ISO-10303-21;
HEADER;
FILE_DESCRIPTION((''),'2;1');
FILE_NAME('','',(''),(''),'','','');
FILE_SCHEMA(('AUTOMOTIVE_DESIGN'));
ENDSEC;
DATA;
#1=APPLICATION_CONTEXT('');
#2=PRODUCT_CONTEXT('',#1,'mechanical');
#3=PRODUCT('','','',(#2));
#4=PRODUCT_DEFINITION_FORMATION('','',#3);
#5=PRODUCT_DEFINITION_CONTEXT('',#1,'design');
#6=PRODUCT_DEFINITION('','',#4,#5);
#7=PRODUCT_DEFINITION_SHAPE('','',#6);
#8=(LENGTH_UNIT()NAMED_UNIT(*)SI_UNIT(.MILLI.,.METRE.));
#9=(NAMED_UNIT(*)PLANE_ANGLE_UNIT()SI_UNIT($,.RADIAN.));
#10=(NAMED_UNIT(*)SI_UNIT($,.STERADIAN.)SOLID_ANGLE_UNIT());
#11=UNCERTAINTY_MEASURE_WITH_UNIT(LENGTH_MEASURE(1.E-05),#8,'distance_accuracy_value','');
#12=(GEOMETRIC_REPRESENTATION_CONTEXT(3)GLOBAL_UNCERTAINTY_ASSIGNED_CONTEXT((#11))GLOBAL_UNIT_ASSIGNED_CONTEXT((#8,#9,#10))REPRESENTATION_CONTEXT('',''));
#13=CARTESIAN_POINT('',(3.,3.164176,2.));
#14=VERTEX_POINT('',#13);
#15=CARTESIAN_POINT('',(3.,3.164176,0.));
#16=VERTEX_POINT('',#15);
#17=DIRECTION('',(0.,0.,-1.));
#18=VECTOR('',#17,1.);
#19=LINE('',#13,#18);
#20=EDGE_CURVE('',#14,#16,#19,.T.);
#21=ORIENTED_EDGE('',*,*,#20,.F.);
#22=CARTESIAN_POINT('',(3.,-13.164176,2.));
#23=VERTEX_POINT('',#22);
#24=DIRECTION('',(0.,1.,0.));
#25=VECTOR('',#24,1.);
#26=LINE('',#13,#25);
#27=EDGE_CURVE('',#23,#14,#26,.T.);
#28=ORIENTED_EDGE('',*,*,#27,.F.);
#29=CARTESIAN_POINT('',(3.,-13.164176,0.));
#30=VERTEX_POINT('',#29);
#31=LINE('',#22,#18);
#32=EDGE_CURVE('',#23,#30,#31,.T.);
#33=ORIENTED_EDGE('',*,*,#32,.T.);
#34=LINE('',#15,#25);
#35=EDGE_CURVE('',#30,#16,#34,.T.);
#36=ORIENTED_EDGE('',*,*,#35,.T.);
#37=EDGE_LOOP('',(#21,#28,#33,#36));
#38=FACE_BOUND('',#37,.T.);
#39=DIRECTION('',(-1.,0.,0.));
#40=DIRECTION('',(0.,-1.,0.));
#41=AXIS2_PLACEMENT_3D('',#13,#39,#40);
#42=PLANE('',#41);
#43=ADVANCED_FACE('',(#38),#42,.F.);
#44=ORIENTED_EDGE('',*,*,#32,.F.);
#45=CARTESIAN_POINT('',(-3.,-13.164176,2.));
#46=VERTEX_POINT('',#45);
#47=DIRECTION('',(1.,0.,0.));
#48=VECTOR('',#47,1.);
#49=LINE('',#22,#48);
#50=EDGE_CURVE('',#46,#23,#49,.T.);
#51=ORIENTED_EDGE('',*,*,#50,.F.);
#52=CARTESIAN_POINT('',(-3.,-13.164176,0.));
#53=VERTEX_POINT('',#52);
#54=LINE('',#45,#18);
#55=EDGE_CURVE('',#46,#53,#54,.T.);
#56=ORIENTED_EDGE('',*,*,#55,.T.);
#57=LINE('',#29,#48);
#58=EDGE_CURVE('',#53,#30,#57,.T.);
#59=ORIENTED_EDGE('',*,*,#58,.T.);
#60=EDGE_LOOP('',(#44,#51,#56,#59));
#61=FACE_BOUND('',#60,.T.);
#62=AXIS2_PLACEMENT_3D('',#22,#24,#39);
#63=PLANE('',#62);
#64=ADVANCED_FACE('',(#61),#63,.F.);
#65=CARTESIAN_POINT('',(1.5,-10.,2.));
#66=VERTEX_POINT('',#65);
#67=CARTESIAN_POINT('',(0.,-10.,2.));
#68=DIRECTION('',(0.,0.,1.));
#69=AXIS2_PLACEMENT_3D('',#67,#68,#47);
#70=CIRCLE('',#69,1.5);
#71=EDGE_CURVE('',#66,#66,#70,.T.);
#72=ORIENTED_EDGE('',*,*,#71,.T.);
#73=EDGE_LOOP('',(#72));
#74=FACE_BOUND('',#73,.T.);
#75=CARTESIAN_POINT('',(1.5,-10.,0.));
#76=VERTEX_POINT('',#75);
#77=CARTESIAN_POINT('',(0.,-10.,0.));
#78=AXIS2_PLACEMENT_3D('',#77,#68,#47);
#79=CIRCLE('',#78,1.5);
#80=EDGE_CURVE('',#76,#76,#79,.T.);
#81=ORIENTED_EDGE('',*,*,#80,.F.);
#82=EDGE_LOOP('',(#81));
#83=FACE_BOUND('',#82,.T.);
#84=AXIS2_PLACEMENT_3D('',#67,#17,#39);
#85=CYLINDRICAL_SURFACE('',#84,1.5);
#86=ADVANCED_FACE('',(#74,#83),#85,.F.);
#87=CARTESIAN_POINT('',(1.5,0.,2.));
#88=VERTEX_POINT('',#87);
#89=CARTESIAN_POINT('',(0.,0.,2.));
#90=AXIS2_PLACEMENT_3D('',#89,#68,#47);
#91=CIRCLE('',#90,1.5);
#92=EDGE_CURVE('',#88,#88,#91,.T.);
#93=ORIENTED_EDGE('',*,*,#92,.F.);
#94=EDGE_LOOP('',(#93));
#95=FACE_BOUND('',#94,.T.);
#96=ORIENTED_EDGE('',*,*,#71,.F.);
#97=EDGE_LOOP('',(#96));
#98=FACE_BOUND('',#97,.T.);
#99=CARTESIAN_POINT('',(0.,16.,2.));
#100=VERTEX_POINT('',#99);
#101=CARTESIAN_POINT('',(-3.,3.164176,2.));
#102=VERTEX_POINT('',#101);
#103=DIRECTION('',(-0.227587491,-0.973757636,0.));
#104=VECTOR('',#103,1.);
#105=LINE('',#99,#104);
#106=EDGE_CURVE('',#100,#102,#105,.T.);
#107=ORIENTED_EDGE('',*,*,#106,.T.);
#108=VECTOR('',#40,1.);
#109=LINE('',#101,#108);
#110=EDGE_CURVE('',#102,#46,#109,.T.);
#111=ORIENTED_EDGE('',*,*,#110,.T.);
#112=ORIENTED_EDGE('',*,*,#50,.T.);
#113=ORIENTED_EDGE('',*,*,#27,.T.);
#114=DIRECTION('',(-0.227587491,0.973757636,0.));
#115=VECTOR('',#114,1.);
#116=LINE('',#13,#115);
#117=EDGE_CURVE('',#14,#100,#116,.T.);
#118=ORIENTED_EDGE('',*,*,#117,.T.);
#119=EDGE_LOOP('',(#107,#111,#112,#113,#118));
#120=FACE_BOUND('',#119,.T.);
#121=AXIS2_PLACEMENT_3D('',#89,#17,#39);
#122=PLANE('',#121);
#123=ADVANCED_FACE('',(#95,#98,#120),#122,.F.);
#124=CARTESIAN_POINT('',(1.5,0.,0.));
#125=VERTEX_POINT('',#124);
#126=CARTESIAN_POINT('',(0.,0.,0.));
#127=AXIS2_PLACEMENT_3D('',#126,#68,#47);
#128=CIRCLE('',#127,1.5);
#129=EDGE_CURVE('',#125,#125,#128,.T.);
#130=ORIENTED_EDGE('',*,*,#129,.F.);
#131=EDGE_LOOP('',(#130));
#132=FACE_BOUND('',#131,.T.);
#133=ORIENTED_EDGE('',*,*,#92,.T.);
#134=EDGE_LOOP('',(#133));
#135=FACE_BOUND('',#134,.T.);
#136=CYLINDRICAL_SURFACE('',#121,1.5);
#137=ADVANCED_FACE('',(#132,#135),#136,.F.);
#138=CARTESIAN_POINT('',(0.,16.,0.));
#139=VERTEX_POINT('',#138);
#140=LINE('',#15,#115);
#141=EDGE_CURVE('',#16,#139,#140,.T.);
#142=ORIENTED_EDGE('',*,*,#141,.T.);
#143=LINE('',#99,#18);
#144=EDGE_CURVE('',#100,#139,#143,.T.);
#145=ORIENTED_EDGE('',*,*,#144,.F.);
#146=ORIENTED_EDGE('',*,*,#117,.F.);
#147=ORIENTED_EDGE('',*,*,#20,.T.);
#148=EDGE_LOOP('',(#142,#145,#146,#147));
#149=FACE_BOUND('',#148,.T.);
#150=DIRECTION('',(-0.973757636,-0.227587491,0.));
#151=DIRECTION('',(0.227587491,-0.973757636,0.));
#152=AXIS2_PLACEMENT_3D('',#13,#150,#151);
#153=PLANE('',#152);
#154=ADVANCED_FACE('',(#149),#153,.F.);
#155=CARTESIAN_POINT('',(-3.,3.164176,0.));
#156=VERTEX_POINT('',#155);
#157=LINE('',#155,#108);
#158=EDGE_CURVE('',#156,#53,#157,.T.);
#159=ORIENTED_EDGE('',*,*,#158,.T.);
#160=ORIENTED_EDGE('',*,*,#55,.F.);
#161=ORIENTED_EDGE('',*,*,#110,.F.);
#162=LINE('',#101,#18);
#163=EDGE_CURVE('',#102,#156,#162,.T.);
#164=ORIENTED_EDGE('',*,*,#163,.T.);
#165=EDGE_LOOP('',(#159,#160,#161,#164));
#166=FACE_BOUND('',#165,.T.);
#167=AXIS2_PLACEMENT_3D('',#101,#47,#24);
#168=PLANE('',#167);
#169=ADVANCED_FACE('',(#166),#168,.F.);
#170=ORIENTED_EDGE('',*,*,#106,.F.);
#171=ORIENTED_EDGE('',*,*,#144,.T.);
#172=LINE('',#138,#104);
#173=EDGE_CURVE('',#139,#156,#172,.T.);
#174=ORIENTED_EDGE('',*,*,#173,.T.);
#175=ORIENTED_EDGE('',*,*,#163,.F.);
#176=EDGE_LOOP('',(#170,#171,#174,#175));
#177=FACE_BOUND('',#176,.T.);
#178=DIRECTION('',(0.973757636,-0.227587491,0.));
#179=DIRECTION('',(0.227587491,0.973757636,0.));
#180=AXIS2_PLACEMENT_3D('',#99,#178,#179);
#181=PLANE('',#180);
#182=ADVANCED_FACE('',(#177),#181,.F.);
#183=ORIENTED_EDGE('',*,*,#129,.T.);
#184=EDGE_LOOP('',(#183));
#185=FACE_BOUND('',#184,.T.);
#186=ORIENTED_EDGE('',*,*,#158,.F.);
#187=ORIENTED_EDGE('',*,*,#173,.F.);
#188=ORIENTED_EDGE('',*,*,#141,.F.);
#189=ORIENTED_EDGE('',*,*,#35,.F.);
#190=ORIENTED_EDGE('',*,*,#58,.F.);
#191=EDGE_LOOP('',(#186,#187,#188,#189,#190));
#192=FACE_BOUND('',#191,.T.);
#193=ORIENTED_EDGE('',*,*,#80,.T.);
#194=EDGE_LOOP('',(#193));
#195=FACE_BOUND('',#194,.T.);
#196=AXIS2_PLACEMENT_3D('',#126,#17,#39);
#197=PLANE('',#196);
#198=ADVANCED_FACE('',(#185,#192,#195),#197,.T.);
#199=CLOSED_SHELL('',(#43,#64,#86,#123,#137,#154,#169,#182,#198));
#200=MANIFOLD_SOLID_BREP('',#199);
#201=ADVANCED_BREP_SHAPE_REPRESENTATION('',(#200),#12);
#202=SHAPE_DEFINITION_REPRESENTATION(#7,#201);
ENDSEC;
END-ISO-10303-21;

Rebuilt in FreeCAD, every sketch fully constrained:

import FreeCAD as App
import Part
import Sketcher
from FreeCAD import Vector


def add_polygon(sketch, points):
    """Adds a closed chain of lines whose ends are joined by coincident constraints."""
    first, n = sketch.GeometryCount, len(points)
    for a, b in zip(points, points[1:] + points[:1]):
        sketch.addGeometry(Part.LineSegment(App.Vector(*a, 0), App.Vector(*b, 0)), False)
    for i in range(n):
        sketch.addConstraint(Sketcher.Constraint("Coincident", first + i, 2, first + (i + 1) % n, 1))

doc = App.newDocument("Part")
body = doc.addObject("PartDesign::Body", "Body")

sketch1 = body.newObject("Sketcher::SketchObject", "Sketch")
sketch1.AttachmentSupport = (doc.getObject("XY_Plane"), [""])
sketch1.MapMode = "FlatFace"
add_polygon(sketch1, [(3, 3.164176), (0, 16), (-3, 3.164176), (-3, -13.164176), (3, -13.164176)])
sketch1.addGeometry(Part.Circle(Vector(0, -10, 0), Vector(0, 0, 1), 1.5), False)
sketch1.addGeometry(Part.Circle(Vector(0, 0, 0), Vector(0, 0, 1), 1.5), False)
sketch1.addConstraint([
    Sketcher.Constraint("Vertical", 2),
    Sketcher.Constraint("Horizontal", 3),
    Sketcher.Constraint("Vertical", 4),
    Sketcher.Constraint("Coincident", 6, 3, -1, 1),
    Sketcher.Constraint("Equal", 5, 6),
    Sketcher.Constraint("Symmetric", 1, 2, 4, 2, -2),
    Sketcher.Constraint("PointOnObject", 5, 3, -2),
    Sketcher.Constraint("PointOnObject", 0, 2, -2),
    Sketcher.Constraint("Diameter", 5, 3.0),
    Sketcher.Constraint("DistanceX", 3, 1, 3, 2, 6.0),
    Sketcher.Constraint("DistanceY", 5, 3, -1, 1, 10.0),
    Sketcher.Constraint("DistanceY", -1, 1, 0, 2, 16.0),
    Sketcher.Constraint("DistanceY", 2, 2, 2, 1, 16.328353),
    Sketcher.Constraint("Distance", 0, 13.181744),
])
pad1 = body.newObject("PartDesign::Pad", "Pad")
pad1.Profile = sketch1
pad1.Length = 2

doc.recompute()
